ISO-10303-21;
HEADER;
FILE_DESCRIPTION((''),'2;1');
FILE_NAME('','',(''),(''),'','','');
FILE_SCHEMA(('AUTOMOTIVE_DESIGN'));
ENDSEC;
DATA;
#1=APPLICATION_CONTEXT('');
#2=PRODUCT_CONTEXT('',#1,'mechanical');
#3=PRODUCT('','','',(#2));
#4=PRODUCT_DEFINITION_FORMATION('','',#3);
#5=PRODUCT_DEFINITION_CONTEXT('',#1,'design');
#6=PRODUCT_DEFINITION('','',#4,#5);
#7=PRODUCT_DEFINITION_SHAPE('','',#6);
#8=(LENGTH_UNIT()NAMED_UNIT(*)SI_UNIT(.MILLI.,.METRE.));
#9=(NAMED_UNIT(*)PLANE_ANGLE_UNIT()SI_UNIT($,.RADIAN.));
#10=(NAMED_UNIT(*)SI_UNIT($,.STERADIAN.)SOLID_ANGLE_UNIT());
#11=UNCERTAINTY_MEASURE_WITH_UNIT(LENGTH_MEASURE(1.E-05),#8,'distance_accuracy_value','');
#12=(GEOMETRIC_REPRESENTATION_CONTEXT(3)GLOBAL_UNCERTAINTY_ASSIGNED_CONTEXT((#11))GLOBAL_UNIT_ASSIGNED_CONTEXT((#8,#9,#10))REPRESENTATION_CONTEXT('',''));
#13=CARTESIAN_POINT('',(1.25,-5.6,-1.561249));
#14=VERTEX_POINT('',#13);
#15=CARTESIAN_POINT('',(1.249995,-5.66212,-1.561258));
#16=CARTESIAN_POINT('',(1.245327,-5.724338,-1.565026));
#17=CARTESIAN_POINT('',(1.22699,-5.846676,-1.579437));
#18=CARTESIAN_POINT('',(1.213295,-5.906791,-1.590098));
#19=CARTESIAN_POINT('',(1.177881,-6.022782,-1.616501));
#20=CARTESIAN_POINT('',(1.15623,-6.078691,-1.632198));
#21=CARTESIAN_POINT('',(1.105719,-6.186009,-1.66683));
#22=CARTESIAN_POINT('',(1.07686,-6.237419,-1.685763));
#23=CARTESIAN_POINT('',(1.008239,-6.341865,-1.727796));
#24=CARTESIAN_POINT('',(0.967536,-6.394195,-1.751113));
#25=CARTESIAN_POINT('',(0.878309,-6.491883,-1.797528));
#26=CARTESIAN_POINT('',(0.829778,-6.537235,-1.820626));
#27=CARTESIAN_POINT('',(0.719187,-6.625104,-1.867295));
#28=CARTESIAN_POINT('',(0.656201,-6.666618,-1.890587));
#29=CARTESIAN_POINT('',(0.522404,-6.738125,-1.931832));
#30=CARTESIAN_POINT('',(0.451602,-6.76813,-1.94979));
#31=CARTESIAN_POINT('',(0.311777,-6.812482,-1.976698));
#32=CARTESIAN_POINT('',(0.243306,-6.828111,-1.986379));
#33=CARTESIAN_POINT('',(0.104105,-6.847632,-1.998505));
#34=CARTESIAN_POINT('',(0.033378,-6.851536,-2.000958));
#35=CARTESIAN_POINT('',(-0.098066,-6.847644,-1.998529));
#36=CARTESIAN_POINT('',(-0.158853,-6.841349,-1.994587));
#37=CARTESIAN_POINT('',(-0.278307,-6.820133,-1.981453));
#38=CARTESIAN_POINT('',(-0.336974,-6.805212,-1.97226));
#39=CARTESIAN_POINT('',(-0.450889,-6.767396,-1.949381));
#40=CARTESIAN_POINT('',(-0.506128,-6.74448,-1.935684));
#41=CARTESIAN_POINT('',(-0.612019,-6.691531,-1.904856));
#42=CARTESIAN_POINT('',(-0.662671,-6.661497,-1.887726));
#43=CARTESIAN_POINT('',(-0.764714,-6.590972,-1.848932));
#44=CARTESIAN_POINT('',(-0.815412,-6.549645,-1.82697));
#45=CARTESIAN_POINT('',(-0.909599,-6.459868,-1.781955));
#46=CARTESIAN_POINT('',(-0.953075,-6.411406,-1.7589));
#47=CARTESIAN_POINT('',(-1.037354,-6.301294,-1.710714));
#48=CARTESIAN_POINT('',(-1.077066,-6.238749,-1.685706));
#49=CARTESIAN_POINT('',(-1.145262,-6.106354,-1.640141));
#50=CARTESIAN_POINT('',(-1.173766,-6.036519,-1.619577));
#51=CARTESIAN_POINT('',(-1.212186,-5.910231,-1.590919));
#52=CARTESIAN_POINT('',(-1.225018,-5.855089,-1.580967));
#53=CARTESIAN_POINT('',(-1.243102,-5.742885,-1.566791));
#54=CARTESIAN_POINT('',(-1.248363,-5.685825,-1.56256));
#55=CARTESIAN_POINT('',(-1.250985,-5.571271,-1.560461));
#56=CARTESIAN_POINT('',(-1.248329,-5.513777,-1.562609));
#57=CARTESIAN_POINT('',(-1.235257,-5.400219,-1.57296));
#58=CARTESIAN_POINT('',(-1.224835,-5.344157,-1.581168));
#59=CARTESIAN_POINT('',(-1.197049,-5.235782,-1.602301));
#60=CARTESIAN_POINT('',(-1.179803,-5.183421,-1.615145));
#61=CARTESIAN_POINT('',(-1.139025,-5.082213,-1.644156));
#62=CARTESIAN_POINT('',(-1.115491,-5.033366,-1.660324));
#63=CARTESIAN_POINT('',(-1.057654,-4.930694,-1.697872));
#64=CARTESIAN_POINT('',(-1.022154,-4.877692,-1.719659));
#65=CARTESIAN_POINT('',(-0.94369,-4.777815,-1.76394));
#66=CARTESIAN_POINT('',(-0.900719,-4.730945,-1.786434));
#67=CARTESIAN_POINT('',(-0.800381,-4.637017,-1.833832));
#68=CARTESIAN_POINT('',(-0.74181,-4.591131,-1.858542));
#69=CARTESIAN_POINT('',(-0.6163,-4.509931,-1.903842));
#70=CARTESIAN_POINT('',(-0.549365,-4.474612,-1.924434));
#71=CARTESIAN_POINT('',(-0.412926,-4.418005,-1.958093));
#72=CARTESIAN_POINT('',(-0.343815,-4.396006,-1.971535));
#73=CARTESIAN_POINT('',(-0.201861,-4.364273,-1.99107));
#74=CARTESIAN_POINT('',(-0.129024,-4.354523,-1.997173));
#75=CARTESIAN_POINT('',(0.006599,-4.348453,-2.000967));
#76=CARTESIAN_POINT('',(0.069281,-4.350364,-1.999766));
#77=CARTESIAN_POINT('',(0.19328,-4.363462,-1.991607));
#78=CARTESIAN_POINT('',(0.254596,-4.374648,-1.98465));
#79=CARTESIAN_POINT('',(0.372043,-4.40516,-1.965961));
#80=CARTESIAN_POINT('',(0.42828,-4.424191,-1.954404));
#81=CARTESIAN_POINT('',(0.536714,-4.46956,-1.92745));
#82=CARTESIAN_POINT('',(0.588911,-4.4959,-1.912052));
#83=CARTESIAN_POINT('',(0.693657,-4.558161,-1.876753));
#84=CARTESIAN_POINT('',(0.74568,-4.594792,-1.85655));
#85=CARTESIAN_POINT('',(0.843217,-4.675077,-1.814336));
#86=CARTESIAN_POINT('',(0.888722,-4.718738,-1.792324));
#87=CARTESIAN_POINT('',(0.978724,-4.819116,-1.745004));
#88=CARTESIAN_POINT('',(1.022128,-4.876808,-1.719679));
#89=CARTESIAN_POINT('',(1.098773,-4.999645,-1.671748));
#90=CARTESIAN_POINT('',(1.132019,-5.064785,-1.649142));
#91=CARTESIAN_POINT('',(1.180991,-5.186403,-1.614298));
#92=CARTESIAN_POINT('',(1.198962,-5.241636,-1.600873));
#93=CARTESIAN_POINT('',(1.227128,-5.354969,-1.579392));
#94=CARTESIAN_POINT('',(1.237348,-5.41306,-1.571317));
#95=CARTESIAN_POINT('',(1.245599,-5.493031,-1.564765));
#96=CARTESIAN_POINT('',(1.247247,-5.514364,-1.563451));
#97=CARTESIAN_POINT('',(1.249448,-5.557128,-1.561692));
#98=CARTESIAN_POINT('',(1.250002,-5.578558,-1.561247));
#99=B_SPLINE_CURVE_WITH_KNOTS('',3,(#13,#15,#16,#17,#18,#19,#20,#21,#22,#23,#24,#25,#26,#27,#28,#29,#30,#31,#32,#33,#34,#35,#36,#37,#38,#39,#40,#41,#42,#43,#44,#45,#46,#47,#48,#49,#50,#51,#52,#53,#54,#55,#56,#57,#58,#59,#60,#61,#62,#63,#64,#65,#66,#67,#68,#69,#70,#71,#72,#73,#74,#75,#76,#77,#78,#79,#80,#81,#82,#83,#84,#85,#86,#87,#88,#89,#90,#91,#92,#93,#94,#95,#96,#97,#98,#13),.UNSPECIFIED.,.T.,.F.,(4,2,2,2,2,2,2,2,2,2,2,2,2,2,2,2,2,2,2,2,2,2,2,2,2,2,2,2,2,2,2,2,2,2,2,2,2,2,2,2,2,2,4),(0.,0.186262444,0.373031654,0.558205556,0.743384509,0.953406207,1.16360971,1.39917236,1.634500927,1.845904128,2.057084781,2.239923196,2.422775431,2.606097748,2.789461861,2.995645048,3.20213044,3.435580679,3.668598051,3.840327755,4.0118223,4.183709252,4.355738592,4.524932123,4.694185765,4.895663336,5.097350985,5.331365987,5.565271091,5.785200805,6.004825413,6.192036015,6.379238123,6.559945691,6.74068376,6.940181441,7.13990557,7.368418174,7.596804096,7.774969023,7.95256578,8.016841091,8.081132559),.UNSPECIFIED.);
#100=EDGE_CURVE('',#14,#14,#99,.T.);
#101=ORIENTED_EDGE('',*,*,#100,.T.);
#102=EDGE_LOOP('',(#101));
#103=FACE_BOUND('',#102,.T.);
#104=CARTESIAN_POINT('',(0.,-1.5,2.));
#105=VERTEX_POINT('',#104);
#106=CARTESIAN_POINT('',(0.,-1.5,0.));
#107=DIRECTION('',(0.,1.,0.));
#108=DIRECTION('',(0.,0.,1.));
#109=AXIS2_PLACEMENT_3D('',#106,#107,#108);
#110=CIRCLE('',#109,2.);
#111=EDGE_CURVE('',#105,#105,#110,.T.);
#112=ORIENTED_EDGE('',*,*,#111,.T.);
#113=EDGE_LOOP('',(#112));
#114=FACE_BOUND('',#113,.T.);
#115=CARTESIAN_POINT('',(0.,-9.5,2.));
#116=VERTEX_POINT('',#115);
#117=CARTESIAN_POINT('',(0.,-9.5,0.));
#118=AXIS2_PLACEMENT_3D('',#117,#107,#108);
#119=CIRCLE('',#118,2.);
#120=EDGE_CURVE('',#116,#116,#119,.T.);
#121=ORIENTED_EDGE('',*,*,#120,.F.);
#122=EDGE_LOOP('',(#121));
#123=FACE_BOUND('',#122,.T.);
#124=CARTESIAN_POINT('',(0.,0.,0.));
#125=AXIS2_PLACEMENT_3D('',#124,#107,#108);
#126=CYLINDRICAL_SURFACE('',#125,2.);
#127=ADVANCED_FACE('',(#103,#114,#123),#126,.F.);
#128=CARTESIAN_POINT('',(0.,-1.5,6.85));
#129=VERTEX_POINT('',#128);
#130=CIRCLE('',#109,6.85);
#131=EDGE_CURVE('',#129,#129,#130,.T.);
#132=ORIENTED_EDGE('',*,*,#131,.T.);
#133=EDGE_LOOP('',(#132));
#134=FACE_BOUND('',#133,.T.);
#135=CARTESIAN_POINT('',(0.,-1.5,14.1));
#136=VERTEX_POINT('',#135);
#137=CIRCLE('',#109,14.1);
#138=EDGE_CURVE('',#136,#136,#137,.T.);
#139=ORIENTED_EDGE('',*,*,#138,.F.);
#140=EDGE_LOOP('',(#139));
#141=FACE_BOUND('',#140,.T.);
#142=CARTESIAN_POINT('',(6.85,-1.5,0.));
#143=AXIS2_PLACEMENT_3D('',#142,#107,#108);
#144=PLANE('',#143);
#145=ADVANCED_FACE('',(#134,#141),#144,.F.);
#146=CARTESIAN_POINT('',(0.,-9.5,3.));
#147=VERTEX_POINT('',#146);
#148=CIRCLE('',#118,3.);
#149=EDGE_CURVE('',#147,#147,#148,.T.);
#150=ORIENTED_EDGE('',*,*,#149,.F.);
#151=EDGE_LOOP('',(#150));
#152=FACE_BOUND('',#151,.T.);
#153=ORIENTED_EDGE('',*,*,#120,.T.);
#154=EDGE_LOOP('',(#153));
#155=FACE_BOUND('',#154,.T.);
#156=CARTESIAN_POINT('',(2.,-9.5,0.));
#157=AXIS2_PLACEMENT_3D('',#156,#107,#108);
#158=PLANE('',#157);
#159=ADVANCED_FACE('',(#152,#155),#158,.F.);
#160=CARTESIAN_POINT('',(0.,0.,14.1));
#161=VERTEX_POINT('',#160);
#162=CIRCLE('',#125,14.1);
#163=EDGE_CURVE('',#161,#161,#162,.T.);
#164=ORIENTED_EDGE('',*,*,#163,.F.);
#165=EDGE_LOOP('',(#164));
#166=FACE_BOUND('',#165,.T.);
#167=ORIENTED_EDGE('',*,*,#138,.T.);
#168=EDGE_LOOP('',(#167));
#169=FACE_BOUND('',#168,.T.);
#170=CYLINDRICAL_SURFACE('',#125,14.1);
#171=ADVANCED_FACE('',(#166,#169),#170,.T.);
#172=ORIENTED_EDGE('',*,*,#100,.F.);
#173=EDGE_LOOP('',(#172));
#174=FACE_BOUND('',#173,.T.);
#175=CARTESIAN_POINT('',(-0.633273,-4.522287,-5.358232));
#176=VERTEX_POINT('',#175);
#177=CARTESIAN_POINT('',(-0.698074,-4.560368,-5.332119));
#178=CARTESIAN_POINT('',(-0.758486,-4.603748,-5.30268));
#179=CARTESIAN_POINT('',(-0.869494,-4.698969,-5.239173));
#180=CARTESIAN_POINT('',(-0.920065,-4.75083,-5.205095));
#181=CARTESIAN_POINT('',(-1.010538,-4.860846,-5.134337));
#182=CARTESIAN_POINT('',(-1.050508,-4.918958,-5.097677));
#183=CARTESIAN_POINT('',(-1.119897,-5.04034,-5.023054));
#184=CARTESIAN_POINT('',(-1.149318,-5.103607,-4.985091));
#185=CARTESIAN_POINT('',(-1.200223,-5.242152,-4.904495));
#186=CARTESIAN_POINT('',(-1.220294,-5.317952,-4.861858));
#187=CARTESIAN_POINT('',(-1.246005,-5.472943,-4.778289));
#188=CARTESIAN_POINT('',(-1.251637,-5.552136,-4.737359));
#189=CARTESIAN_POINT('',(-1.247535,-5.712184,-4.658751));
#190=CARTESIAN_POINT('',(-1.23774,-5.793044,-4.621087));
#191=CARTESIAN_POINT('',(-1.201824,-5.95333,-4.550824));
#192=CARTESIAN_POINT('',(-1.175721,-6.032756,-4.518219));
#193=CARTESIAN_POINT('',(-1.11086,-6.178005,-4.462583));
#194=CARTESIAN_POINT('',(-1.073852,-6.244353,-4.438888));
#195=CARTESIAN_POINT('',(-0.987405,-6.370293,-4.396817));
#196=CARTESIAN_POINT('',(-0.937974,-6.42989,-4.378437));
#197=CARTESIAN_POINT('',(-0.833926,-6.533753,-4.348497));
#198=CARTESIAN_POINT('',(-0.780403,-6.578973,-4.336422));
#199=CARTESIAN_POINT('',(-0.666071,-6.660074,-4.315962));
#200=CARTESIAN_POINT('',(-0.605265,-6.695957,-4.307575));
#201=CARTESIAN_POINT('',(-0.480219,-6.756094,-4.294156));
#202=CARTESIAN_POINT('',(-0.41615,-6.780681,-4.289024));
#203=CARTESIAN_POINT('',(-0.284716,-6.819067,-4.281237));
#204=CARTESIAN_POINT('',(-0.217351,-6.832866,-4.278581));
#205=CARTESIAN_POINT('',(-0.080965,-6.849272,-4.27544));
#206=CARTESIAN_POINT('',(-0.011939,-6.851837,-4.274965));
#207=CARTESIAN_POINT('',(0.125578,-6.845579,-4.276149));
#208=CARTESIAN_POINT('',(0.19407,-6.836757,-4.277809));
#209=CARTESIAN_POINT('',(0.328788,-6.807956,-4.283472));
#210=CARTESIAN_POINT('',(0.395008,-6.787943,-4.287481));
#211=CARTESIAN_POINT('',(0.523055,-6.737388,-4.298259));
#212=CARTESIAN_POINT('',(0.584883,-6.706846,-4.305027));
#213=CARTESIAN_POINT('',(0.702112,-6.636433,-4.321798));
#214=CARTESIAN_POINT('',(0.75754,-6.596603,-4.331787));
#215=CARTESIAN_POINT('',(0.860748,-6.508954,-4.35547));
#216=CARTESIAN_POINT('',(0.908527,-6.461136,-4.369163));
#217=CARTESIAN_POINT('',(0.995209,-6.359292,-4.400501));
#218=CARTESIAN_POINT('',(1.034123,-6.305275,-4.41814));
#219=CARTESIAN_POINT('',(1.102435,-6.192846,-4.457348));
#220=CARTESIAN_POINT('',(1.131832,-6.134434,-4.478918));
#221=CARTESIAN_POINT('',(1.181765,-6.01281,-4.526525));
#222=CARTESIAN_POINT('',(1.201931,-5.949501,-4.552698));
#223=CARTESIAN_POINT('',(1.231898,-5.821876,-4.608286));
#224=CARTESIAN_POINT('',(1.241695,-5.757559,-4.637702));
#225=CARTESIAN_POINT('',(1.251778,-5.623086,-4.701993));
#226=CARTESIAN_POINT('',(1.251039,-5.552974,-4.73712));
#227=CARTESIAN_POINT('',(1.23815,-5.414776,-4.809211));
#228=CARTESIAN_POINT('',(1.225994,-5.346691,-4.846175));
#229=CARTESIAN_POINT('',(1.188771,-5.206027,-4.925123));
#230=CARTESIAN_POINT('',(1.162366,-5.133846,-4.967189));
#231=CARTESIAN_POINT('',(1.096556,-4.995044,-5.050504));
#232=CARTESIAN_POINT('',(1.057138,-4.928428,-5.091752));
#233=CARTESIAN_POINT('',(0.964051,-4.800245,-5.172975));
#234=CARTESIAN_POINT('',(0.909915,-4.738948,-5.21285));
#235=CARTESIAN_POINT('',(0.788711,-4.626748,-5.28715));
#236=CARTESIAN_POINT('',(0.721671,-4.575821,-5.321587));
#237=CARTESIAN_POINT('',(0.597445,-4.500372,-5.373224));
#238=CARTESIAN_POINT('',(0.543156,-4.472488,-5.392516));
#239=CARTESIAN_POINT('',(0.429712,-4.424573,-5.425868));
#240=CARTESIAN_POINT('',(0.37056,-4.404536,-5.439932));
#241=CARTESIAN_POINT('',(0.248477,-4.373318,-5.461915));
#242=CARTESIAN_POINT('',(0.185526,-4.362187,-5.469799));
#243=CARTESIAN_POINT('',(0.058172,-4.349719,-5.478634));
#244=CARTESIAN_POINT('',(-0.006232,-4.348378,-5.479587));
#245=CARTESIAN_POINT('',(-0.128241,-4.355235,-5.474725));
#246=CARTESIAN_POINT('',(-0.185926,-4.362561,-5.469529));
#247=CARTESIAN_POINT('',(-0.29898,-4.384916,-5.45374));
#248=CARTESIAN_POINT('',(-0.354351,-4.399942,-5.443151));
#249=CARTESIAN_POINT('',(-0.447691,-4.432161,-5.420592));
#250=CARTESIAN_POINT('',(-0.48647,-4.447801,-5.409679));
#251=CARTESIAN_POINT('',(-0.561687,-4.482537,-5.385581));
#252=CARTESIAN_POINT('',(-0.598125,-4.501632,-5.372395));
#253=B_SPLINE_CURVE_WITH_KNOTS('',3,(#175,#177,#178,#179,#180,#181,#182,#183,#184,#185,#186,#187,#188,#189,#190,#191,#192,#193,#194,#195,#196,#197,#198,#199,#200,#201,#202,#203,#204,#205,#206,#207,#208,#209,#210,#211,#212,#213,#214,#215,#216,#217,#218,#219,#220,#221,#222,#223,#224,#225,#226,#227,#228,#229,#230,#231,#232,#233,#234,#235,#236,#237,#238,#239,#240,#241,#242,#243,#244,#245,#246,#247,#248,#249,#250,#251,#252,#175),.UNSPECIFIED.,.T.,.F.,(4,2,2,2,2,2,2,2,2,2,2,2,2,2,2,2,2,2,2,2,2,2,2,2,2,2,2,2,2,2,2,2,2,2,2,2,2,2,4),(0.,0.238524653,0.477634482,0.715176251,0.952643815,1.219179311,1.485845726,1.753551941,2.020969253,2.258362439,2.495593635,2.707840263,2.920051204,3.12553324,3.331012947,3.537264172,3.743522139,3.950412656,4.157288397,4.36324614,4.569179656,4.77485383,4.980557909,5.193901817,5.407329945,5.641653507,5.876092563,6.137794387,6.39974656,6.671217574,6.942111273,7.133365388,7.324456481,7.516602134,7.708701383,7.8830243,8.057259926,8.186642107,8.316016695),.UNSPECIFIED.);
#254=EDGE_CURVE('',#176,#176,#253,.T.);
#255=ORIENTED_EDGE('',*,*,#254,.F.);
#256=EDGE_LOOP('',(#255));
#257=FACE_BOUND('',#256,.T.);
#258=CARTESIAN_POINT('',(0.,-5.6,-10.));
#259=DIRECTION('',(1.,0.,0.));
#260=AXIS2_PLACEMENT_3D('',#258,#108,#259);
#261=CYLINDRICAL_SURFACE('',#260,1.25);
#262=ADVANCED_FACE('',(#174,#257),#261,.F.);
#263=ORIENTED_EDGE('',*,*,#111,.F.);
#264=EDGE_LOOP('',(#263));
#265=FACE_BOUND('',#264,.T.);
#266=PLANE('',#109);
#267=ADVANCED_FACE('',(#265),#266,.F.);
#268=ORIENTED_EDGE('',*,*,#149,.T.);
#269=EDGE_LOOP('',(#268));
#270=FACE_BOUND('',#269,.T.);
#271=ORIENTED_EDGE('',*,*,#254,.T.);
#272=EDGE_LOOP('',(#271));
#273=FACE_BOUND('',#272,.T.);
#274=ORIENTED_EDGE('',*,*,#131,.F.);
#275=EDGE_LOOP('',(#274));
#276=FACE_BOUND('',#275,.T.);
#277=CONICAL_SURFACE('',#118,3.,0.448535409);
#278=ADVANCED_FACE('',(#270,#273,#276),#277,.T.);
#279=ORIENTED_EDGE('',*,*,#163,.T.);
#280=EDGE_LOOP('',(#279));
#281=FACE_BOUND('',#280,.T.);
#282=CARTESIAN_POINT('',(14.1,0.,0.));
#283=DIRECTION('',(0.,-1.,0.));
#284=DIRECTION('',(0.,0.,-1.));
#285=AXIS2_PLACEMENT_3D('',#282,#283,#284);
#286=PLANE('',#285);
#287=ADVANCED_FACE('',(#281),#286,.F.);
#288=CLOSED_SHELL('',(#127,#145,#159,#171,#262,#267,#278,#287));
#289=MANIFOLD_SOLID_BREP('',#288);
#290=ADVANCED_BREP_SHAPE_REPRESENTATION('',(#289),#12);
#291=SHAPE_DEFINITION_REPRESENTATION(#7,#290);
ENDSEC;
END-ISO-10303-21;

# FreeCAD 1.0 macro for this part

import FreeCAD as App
import Part
import Sketcher
from FreeCAD import Vector
Q = App.Units.Quantity

doc = App.newDocument("Part")
body = doc.addObject("PartDesign::Body", "Body")

sketch1 = body.newObject("Sketcher::SketchObject", "Sketch")
sketch1.AttachmentSupport = (doc.getObject("XY_Plane"), [""])
sketch1.MapMode = "FlatFace"
sketch1.addGeometry([
    Part.LineSegment(Vector(0, 0, 0), Vector(0, -1.5, 0)),
    Part.LineSegment(Vector(0, -1.5, 0), Vector(2, -1.5, 0)),
    Part.LineSegment(Vector(2, -1.5, 0), Vector(2, -9.5, 0)),
    Part.LineSegment(Vector(2, -9.5, 0), Vector(3, -9.5, 0)),
    Part.LineSegment(Vector(3, -9.5, 0), Vector(6.8, -1.5, 0)),
    Part.LineSegment(Vector(6.8, -1.5, 0), Vector(14.1, -1.5, 0)),
    Part.LineSegment(Vector(14.1, -1.5, 0), Vector(14.1, 0, 0)),
    Part.LineSegment(Vector(14.1, 0, 0), Vector(0, 0, 0)),
], False)
sketch1.addConstraint([
    Sketcher.Constraint("Coincident", 0, 2, 1, 1),
    Sketcher.Constraint("Coincident", 1, 2, 2, 1),
    Sketcher.Constraint("Coincident", 2, 2, 3, 1),
    Sketcher.Constraint("Coincident", 3, 2, 4, 1),
    Sketcher.Constraint("Coincident", 4, 2, 5, 1),
    Sketcher.Constraint("Coincident", 5, 2, 6, 1),
    Sketcher.Constraint("Coincident", 6, 2, 7, 1),
    Sketcher.Constraint("Coincident", 7, 2, 0, 1),
    Sketcher.Constraint("Vertical", 0),
    Sketcher.Constraint("Horizontal", 1),
    Sketcher.Constraint("Vertical", 2),
    Sketcher.Constraint("Horizontal", 3),
    Sketcher.Constraint("Horizontal", 5),
    Sketcher.Constraint("Vertical", 6),
    Sketcher.Constraint("Horizontal", 7),
    Sketcher.Constraint("Coincident", 7, 2, -1, 1),
    Sketcher.Constraint("Horizontal", 1, 2, 4, 2),
    Sketcher.Constraint("DistanceX", 1, 1, 1, 2, Q("2 mm")),
    Sketcher.Constraint("DistanceX", 3, 1, 3, 2, Q("1 mm")),
    Sketcher.Constraint("DistanceY", 2, 2, 2, 1, Q("8 mm")),
    Sketcher.Constraint("DistanceX", 7, 2, 7, 1, Q("14.1 mm")),
    Sketcher.Constraint("DistanceY", 0, 2, 0, 1, Q("1.5 mm")),
    Sketcher.Constraint("DistanceX", 5, 1, 5, 2, Q("7.25 mm")),
])
revolution = body.newObject("PartDesign::Revolution", "Revolution")
revolution.Profile = sketch1
revolution.ReferenceAxis = (sketch1, ["V_Axis"])
revolution.Angle = 360

sketch2 = body.newObject("Sketcher::SketchObject", "Sketch001")
sketch2.AttachmentSupport = (doc.getObject("XY_Plane"), [""])
sketch2.MapMode = "FlatFace"
sketch2.addGeometry(Part.Circle(Vector(0, -5.6, 0), Vector(0, 0, 1), 1.2), False)
sketch2.addConstraint([
    Sketcher.Constraint("PointOnObject", 0, 3, -2),
    Sketcher.Constraint("Diameter", 0, Q("2.5 mm")),
    Sketcher.Constraint("DistanceY", 0, 3, -1, 1, Q("5.6 mm")),
])
pocket1 = body.newObject("PartDesign::Pocket", "Pocket")
pocket1.Profile = sketch2
pocket1.Length = 10

doc.recompute()
